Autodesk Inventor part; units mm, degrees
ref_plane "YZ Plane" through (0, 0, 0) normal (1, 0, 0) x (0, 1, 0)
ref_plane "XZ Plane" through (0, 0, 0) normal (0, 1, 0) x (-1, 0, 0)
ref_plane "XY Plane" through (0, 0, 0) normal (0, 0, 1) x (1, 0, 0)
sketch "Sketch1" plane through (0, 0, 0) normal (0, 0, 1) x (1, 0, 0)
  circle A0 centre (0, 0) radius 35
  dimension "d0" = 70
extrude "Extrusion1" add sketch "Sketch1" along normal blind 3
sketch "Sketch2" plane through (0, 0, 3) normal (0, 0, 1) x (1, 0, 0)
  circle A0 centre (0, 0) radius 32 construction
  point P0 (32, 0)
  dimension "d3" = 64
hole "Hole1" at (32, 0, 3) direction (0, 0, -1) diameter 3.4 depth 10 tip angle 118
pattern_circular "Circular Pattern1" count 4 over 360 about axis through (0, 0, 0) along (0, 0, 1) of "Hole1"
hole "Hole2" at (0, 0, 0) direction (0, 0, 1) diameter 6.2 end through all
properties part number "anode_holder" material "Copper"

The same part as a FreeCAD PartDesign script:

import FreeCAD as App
import Part
import Sketcher
Q = App.Units.Quantity

doc = App.newDocument("Part")
body = doc.addObject("PartDesign::Body", "Body")

sketch1 = body.newObject("Sketcher::SketchObject", "Sketch")
sketch1.AttachmentSupport = (doc.getObject("XY_Plane"), [""])
sketch1.MapMode = "FlatFace"
sketch1.addGeometry(Part.Circle(App.Vector(0, 0, 0), App.Vector(0, 0, 1), 35), False)
sketch1.addConstraint([
    Sketcher.Constraint("Coincident", 0, 3, -1, 1),
    Sketcher.Constraint("Diameter", 0, Q("70 mm")),
])
pad1 = body.newObject("PartDesign::Pad", "Pad")
pad1.Profile = sketch1
pad1.Length = 3

sketch2 = body.newObject("Sketcher::SketchObject", "Sketch001")
sketch2.AttachmentSupport = (doc.getObject("XY_Plane"), [""])
sketch2.MapMode = "FlatFace"
sketch2.AttachmentOffset = App.Placement(App.Vector(0, 0, 3), App.Rotation())
sketch2.addGeometry(Part.Circle(App.Vector(32, 0, 0), App.Vector(0, 0, 1), 1.7), False)
sketch2.addConstraint([
    Sketcher.Constraint("PointOnObject", 0, 3, -1),
    Sketcher.Constraint("Diameter", 0, Q("3.4 mm")),
    Sketcher.Constraint("DistanceX", -1, 1, 0, 3, Q("32 mm")),
])
doc.recompute()
hole = body.newObject("PartDesign::Hole", "Hole")
hole.Profile = sketch2
hole.ThreadType = "None"
hole.Diameter = 3.4
hole.DepthType = "Dimension"
hole.Depth = 10
hole.DrillPoint = "Angled"
hole.DrillPointAngle = 118
doc.recompute()

polarpattern = body.newObject("PartDesign::PolarPattern", "PolarPattern")
polarpattern.Originals = [hole]
polarpattern.Axis = (doc.getObject("Z_Axis"), [""])
polarpattern.Angle = 360
polarpattern.Occurrences = 4
body.Tip = polarpattern

sketch3 = body.newObject("Sketcher::SketchObject", "Sketch002")
sketch3.AttachmentSupport = (doc.getObject("XY_Plane"), [""])
sketch3.MapMode = "FlatFace"
sketch3.addGeometry(Part.Circle(App.Vector(0, 0, 0), App.Vector(0, 0, 1), 3.1), False)
sketch3.addConstraint([
    Sketcher.Constraint("Coincident", 0, 3, -1, 1),
    Sketcher.Constraint("Diameter", 0, Q("6.2 mm")),
])
doc.recompute()
hole2 = body.newObject("PartDesign::Hole", "Hole001")
hole2.Profile = sketch3
hole2.ThreadType = "None"
hole2.Diameter = 6.2
hole2.DepthType = "ThroughAll"
hole2.Reversed = True

doc.recompute()
